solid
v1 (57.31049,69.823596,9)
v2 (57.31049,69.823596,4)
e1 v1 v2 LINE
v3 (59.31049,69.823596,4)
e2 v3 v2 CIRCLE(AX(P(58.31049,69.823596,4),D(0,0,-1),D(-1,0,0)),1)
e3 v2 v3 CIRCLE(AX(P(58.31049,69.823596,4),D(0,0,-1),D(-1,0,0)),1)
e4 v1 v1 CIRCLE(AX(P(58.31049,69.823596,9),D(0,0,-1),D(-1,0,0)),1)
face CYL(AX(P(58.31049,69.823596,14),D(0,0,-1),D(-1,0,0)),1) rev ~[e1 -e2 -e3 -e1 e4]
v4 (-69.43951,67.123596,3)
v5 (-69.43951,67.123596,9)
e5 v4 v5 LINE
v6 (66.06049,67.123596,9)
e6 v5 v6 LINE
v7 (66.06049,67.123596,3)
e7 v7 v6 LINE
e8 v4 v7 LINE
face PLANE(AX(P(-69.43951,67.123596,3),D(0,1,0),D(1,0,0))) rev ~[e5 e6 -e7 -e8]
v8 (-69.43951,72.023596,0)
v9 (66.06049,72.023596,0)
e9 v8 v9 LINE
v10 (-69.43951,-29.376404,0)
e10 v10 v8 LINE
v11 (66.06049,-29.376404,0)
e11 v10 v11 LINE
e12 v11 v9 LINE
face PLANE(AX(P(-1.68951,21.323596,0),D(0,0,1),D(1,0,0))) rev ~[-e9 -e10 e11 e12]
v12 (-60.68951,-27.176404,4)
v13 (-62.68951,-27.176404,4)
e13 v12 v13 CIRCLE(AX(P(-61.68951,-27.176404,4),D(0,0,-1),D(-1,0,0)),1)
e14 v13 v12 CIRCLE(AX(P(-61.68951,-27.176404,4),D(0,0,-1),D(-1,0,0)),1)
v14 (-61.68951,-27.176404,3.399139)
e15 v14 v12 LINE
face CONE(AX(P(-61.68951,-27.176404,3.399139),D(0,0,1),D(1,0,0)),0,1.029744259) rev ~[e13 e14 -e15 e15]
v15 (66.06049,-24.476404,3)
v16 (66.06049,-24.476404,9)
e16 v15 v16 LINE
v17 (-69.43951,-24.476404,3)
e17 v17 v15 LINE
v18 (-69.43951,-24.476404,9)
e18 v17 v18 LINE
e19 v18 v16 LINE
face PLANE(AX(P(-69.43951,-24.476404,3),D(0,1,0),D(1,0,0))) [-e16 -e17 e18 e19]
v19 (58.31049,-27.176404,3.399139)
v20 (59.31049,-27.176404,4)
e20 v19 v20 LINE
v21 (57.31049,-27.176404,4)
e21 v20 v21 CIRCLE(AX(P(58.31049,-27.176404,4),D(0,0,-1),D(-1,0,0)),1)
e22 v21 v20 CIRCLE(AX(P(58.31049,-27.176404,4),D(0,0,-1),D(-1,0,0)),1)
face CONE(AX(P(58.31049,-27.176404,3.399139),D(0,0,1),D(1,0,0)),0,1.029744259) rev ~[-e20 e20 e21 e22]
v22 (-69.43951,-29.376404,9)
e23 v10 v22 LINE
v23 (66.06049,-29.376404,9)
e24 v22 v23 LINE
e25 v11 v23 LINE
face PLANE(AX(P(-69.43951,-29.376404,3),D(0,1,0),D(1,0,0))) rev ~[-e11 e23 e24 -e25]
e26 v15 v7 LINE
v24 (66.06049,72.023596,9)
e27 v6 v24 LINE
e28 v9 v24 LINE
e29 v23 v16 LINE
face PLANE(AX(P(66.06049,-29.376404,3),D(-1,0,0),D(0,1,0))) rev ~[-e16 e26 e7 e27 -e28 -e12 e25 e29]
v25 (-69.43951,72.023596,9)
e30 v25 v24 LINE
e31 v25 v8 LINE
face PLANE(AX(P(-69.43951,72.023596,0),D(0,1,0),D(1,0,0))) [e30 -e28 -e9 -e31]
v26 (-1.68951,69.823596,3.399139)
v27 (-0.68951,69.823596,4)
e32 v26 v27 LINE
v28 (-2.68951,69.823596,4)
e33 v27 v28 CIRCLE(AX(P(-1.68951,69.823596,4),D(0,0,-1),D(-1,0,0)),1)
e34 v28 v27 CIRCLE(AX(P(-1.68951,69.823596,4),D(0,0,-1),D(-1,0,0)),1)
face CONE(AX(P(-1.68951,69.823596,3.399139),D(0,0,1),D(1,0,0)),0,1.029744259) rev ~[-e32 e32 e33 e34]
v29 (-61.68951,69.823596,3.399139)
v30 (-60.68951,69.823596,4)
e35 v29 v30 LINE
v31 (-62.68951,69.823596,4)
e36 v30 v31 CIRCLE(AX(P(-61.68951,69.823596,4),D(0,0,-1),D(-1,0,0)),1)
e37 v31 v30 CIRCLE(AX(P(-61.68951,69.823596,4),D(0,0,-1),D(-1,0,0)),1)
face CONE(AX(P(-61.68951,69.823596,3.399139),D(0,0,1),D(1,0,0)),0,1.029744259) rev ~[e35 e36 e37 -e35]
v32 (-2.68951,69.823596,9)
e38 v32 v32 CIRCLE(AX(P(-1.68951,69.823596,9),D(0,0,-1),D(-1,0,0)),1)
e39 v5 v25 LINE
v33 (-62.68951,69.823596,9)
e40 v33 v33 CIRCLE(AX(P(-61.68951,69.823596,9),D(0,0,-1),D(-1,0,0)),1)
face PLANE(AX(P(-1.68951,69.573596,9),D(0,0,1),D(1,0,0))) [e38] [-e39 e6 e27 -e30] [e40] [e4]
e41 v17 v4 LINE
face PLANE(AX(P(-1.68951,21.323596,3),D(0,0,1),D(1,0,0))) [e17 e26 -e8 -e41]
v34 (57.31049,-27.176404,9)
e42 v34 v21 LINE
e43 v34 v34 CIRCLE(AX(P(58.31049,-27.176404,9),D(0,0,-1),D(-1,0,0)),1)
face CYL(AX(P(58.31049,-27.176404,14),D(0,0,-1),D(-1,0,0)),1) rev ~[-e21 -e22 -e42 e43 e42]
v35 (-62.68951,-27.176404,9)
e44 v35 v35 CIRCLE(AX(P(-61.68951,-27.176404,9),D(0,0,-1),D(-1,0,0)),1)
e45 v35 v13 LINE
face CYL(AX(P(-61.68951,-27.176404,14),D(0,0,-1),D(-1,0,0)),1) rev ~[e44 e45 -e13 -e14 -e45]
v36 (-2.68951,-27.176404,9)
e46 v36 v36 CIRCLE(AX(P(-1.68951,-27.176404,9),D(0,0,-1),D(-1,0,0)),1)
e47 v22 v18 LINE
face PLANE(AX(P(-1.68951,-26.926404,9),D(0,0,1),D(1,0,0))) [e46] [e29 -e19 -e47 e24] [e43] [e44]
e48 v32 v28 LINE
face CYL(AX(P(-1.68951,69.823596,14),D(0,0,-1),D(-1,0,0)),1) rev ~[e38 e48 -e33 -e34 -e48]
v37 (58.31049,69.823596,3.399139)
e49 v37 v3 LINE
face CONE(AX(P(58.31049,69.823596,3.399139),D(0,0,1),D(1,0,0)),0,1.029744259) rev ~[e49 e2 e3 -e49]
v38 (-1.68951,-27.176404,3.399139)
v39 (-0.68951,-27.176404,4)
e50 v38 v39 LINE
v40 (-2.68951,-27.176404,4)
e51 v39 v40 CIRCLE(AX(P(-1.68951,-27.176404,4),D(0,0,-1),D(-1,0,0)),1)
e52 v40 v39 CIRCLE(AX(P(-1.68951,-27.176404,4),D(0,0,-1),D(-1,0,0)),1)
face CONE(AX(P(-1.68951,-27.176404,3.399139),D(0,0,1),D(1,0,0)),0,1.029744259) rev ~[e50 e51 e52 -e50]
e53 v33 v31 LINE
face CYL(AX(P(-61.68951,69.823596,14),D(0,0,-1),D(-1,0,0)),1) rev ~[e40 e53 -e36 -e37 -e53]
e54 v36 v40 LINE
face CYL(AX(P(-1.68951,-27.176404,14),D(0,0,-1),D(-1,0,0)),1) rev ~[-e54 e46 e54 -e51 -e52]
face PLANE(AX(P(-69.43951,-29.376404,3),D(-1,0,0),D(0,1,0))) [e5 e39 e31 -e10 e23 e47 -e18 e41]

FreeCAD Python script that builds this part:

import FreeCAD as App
import Part
import Sketcher
Q = App.Units.Quantity

doc = App.newDocument("Part")
params = doc.addObject("Spreadsheet::Sheet", "Params")
for row, (alias, value) in enumerate([
    ("sketch1_width", "135.5 mm"),
    ("sketch1_height", "101.4 mm"),
    ("pad1_length", "3 mm"),
    ("sketch2_width", "135.5 mm"),
    ("sketch2_height", "4.9 mm"),
    ("pad2_length", "6 mm"),
    ("sketch3_width", "135.5 mm"),
    ("sketch3_height", "4.9 mm"),
    ("pad3_length", "6 mm"),
    ("sketch4_diameter", "2 mm"),
    ("hole_diameter", "2 mm"),
    ("hole_depth", "5 mm"),
], start=1):
    params.set(f"A{row}", alias)
    params.set(f"B{row}", "=" + value)
    params.setAlias(f"B{row}", alias)

body = doc.addObject("PartDesign::Body", "Body")

sketch1 = body.newObject("Sketcher::SketchObject", "Sketch")
sketch1.AttachmentSupport = (doc.getObject("XY_Plane"), [""])
sketch1.MapMode = "FlatFace"
sketch1.addGeometry([
    Part.LineSegment(App.Vector(-69, 72, 0), App.Vector(-69, -29, 0)),
    Part.LineSegment(App.Vector(-69, -29, 0), App.Vector(66, -29, 0)),
    Part.LineSegment(App.Vector(66, -29, 0), App.Vector(66, 72, 0)),
    Part.LineSegment(App.Vector(66, 72, 0), App.Vector(-69, 72, 0)),
], False)
sketch1.addConstraint([
    Sketcher.Constraint("Coincident", 0, 2, 1, 1),
    Sketcher.Constraint("Coincident", 1, 2, 2, 1),
    Sketcher.Constraint("Coincident", 2, 2, 3, 1),
    Sketcher.Constraint("Coincident", 3, 2, 0, 1),
    Sketcher.Constraint("Vertical", 0),
    Sketcher.Constraint("Horizontal", 1),
    Sketcher.Constraint("Vertical", 2),
    Sketcher.Constraint("Horizontal", 3),
    Sketcher.Constraint("DistanceX", 1, 1, 1, 2, Q("135.5 mm")),
    Sketcher.Constraint("DistanceY", 0, 2, 0, 1, Q("101.4 mm")),
    Sketcher.Constraint("DistanceX", 0, 2, -1, 1, Q("69.43951 mm")),
    Sketcher.Constraint("DistanceY", 0, 2, -1, 1, Q("29.376404 mm")),
])
sketch1.setExpression("Constraints[8]", "Params.sketch1_width")
sketch1.setExpression("Constraints[9]", "Params.sketch1_height")
pad1 = body.newObject("PartDesign::Pad", "Pad")
pad1.Profile = sketch1
pad1.setExpression("Length", "Params.pad1_length")

sketch2 = body.newObject("Sketcher::SketchObject", "Sketch001")
sketch2.AttachmentSupport = (doc.getObject("XY_Plane"), [""])
sketch2.MapMode = "FlatFace"
sketch2.AttachmentOffset = App.Placement(App.Vector(0, 0, 3), App.Rotation())
sketch2.addGeometry([
    Part.LineSegment(App.Vector(-69.4, -24.5, 0), App.Vector(-69.4, -29.4, 0)),
    Part.LineSegment(App.Vector(-69.4, -29.4, 0), App.Vector(66.1, -29.4, 0)),
    Part.LineSegment(App.Vector(66.1, -29.4, 0), App.Vector(66.1, -24.5, 0)),
    Part.LineSegment(App.Vector(66.1, -24.5, 0), App.Vector(-69.4, -24.5, 0)),
], False)
sketch2.addConstraint([
    Sketcher.Constraint("Coincident", 0, 2, 1, 1),
    Sketcher.Constraint("Coincident", 1, 2, 2, 1),
    Sketcher.Constraint("Coincident", 2, 2, 3, 1),
    Sketcher.Constraint("Coincident", 3, 2, 0, 1),
    Sketcher.Constraint("Vertical", 0),
    Sketcher.Constraint("Horizontal", 1),
    Sketcher.Constraint("Vertical", 2),
    Sketcher.Constraint("Horizontal", 3),
    Sketcher.Constraint("DistanceX", 1, 1, 1, 2, Q("135.5 mm")),
    Sketcher.Constraint("DistanceY", 0, 2, 0, 1, Q("4.9 mm")),
    Sketcher.Constraint("DistanceX", 0, 2, -1, 1, Q("69.43951 mm")),
    Sketcher.Constraint("DistanceY", 0, 2, -1, 1, Q("29.376404 mm")),
])
sketch2.setExpression("Constraints[8]", "Params.sketch2_width")
sketch2.setExpression("Constraints[9]", "Params.sketch2_height")
pad2 = body.newObject("PartDesign::Pad", "Pad001")
pad2.Profile = sketch2
pad2.setExpression("Length", "Params.pad2_length")

sketch3 = body.newObject("Sketcher::SketchObject", "Sketch002")
sketch3.AttachmentSupport = (doc.getObject("XY_Plane"), [""])
sketch3.MapMode = "FlatFace"
sketch3.AttachmentOffset = App.Placement(App.Vector(0, 0, 3), App.Rotation())
sketch3.addGeometry([
    Part.LineSegment(App.Vector(-69.4, -24.5, 0), App.Vector(-69.4, -29.4, 0)),
    Part.LineSegment(App.Vector(-69.4, -29.4, 0), App.Vector(66.1, -29.4, 0)),
    Part.LineSegment(App.Vector(66.1, -29.4, 0), App.Vector(66.1, -24.5, 0)),
    Part.LineSegment(App.Vector(66.1, -24.5, 0), App.Vector(-69.4, -24.5, 0)),
    Part.LineSegment(App.Vector(-69.4, 72, 0), App.Vector(-69.4, 67.1, 0)),
    Part.LineSegment(App.Vector(-69.4, 67.1, 0), App.Vector(66.1, 67.1, 0)),
    Part.LineSegment(App.Vector(66.1, 67.1, 0), App.Vector(66.1, 72, 0)),
    Part.LineSegment(App.Vector(66.1, 72, 0), App.Vector(-69.4, 72, 0)),
], False)
sketch3.addConstraint([
    Sketcher.Constraint("Coincident", 0, 2, 1, 1),
    Sketcher.Constraint("Coincident", 1, 2, 2, 1),
    Sketcher.Constraint("Coincident", 2, 2, 3, 1),
    Sketcher.Constraint("Coincident", 3, 2, 0, 1),
    Sketcher.Constraint("Coincident", 4, 2, 5, 1),
    Sketcher.Constraint("Coincident", 5, 2, 6, 1),
    Sketcher.Constraint("Coincident", 6, 2, 7, 1),
    Sketcher.Constraint("Coincident", 7, 2, 4, 1),
    Sketcher.Constraint("Vertical", 0),
    Sketcher.Constraint("Horizontal", 1),
    Sketcher.Constraint("Vertical", 2),
    Sketcher.Constraint("Horizontal", 3),
    Sketcher.Constraint("Vertical", 4),
    Sketcher.Constraint("Horizontal", 5),
    Sketcher.Constraint("Vertical", 6),
    Sketcher.Constraint("Horizontal", 7),
    Sketcher.Constraint("Vertical", 3, 2, 4, 2),
    Sketcher.Constraint("Vertical", 2, 2, 5, 2),
    Sketcher.Constraint("Equal", 2, 4),
    Sketcher.Constraint("DistanceX", 1, 1, 1, 2, Q("135.5 mm")),
    Sketcher.Constraint("DistanceY", 0, 2, 0, 1, Q("4.9 mm")),
    Sketcher.Constraint("DistanceY", 3, 2, 4, 2, Q("91.6 mm")),
    Sketcher.Constraint("DistanceX", 0, 2, -1, 1, Q("69.43951 mm")),
    Sketcher.Constraint("DistanceY", 0, 2, -1, 1, Q("29.376404 mm")),
])
sketch3.setExpression("Constraints[19]", "Params.sketch3_width")
sketch3.setExpression("Constraints[20]", "Params.sketch3_height")
pad3 = body.newObject("PartDesign::Pad", "Pad002")
pad3.Profile = sketch3
pad3.setExpression("Length", "Params.pad3_length")

sketch4 = body.newObject("Sketcher::SketchObject", "Sketch003")
sketch4.AttachmentSupport = (doc.getObject("XY_Plane"), [""])
sketch4.MapMode = "FlatFace"
sketch4.AttachmentOffset = App.Placement(App.Vector(0, 0, 9), App.Rotation())
sketch4.addGeometry([
    Part.Circle(App.Vector(-61.7, 69.8, 0), App.Vector(0, 0, 1), 1),
    Part.Circle(App.Vector(-1.7, 69.8, 0), App.Vector(0, 0, 1), 1),
    Part.Circle(App.Vector(58.3, 69.8, 0), App.Vector(0, 0, 1), 1),
    Part.Circle(App.Vector(58.3, -27.2, 0), App.Vector(0, 0, 1), 1),
    Part.Circle(App.Vector(-1.7, -27.2, 0), App.Vector(0, 0, 1), 1),
    Part.Circle(App.Vector(-61.7, -27.2, 0), App.Vector(0, 0, 1), 1),
], False)
sketch4.addConstraint([
    Sketcher.Constraint("Equal", 0, 1),
    Sketcher.Constraint("Equal", 1, 2),
    Sketcher.Constraint("Equal", 2, 3),
    Sketcher.Constraint("Equal", 3, 4),
    Sketcher.Constraint("Equal", 4, 5),
    Sketcher.Constraint("Horizontal", 0, 3, 1, 3),
    Sketcher.Constraint("Horizontal", 1, 3, 2, 3),
    Sketcher.Constraint("Horizontal", 3, 3, 4, 3),
    Sketcher.Constraint("Horizontal", 4, 3, 5, 3),
    Sketcher.Constraint("Vertical", 2, 3, 3, 3),
    Sketcher.Constraint("Vertical", 1, 3, 4, 3),
    Sketcher.Constraint("Vertical", 0, 3, 5, 3),
    Sketcher.Constraint("Diameter", 0, Q("2 mm")),
    Sketcher.Constraint("DistanceX", 0, 3, 1, 3, Q("60 mm")),
    Sketcher.Constraint("DistanceX", 1, 3, 2, 3, Q("60 mm")),
    Sketcher.Constraint("DistanceY", 3, 3, 2, 3, Q("97 mm")),
    Sketcher.Constraint("DistanceX", 0, 3, -1, 1, Q("61.68951 mm")),
    Sketcher.Constraint("DistanceY", -1, 1, 0, 3, Q("69.823596 mm")),
])
sketch4.setExpression("Constraints[12]", "Params.sketch4_diameter")
doc.recompute()
hole = body.newObject("PartDesign::Hole", "Hole")
hole.Profile = sketch4
hole.ThreadType = "None"
hole.setExpression("Diameter", "Params.hole_diameter")
hole.DepthType = "Dimension"
hole.setExpression("Depth", "Params.hole_depth")
hole.DrillPoint = "Angled"
hole.DrillPointAngle = 118

doc.recompute()
